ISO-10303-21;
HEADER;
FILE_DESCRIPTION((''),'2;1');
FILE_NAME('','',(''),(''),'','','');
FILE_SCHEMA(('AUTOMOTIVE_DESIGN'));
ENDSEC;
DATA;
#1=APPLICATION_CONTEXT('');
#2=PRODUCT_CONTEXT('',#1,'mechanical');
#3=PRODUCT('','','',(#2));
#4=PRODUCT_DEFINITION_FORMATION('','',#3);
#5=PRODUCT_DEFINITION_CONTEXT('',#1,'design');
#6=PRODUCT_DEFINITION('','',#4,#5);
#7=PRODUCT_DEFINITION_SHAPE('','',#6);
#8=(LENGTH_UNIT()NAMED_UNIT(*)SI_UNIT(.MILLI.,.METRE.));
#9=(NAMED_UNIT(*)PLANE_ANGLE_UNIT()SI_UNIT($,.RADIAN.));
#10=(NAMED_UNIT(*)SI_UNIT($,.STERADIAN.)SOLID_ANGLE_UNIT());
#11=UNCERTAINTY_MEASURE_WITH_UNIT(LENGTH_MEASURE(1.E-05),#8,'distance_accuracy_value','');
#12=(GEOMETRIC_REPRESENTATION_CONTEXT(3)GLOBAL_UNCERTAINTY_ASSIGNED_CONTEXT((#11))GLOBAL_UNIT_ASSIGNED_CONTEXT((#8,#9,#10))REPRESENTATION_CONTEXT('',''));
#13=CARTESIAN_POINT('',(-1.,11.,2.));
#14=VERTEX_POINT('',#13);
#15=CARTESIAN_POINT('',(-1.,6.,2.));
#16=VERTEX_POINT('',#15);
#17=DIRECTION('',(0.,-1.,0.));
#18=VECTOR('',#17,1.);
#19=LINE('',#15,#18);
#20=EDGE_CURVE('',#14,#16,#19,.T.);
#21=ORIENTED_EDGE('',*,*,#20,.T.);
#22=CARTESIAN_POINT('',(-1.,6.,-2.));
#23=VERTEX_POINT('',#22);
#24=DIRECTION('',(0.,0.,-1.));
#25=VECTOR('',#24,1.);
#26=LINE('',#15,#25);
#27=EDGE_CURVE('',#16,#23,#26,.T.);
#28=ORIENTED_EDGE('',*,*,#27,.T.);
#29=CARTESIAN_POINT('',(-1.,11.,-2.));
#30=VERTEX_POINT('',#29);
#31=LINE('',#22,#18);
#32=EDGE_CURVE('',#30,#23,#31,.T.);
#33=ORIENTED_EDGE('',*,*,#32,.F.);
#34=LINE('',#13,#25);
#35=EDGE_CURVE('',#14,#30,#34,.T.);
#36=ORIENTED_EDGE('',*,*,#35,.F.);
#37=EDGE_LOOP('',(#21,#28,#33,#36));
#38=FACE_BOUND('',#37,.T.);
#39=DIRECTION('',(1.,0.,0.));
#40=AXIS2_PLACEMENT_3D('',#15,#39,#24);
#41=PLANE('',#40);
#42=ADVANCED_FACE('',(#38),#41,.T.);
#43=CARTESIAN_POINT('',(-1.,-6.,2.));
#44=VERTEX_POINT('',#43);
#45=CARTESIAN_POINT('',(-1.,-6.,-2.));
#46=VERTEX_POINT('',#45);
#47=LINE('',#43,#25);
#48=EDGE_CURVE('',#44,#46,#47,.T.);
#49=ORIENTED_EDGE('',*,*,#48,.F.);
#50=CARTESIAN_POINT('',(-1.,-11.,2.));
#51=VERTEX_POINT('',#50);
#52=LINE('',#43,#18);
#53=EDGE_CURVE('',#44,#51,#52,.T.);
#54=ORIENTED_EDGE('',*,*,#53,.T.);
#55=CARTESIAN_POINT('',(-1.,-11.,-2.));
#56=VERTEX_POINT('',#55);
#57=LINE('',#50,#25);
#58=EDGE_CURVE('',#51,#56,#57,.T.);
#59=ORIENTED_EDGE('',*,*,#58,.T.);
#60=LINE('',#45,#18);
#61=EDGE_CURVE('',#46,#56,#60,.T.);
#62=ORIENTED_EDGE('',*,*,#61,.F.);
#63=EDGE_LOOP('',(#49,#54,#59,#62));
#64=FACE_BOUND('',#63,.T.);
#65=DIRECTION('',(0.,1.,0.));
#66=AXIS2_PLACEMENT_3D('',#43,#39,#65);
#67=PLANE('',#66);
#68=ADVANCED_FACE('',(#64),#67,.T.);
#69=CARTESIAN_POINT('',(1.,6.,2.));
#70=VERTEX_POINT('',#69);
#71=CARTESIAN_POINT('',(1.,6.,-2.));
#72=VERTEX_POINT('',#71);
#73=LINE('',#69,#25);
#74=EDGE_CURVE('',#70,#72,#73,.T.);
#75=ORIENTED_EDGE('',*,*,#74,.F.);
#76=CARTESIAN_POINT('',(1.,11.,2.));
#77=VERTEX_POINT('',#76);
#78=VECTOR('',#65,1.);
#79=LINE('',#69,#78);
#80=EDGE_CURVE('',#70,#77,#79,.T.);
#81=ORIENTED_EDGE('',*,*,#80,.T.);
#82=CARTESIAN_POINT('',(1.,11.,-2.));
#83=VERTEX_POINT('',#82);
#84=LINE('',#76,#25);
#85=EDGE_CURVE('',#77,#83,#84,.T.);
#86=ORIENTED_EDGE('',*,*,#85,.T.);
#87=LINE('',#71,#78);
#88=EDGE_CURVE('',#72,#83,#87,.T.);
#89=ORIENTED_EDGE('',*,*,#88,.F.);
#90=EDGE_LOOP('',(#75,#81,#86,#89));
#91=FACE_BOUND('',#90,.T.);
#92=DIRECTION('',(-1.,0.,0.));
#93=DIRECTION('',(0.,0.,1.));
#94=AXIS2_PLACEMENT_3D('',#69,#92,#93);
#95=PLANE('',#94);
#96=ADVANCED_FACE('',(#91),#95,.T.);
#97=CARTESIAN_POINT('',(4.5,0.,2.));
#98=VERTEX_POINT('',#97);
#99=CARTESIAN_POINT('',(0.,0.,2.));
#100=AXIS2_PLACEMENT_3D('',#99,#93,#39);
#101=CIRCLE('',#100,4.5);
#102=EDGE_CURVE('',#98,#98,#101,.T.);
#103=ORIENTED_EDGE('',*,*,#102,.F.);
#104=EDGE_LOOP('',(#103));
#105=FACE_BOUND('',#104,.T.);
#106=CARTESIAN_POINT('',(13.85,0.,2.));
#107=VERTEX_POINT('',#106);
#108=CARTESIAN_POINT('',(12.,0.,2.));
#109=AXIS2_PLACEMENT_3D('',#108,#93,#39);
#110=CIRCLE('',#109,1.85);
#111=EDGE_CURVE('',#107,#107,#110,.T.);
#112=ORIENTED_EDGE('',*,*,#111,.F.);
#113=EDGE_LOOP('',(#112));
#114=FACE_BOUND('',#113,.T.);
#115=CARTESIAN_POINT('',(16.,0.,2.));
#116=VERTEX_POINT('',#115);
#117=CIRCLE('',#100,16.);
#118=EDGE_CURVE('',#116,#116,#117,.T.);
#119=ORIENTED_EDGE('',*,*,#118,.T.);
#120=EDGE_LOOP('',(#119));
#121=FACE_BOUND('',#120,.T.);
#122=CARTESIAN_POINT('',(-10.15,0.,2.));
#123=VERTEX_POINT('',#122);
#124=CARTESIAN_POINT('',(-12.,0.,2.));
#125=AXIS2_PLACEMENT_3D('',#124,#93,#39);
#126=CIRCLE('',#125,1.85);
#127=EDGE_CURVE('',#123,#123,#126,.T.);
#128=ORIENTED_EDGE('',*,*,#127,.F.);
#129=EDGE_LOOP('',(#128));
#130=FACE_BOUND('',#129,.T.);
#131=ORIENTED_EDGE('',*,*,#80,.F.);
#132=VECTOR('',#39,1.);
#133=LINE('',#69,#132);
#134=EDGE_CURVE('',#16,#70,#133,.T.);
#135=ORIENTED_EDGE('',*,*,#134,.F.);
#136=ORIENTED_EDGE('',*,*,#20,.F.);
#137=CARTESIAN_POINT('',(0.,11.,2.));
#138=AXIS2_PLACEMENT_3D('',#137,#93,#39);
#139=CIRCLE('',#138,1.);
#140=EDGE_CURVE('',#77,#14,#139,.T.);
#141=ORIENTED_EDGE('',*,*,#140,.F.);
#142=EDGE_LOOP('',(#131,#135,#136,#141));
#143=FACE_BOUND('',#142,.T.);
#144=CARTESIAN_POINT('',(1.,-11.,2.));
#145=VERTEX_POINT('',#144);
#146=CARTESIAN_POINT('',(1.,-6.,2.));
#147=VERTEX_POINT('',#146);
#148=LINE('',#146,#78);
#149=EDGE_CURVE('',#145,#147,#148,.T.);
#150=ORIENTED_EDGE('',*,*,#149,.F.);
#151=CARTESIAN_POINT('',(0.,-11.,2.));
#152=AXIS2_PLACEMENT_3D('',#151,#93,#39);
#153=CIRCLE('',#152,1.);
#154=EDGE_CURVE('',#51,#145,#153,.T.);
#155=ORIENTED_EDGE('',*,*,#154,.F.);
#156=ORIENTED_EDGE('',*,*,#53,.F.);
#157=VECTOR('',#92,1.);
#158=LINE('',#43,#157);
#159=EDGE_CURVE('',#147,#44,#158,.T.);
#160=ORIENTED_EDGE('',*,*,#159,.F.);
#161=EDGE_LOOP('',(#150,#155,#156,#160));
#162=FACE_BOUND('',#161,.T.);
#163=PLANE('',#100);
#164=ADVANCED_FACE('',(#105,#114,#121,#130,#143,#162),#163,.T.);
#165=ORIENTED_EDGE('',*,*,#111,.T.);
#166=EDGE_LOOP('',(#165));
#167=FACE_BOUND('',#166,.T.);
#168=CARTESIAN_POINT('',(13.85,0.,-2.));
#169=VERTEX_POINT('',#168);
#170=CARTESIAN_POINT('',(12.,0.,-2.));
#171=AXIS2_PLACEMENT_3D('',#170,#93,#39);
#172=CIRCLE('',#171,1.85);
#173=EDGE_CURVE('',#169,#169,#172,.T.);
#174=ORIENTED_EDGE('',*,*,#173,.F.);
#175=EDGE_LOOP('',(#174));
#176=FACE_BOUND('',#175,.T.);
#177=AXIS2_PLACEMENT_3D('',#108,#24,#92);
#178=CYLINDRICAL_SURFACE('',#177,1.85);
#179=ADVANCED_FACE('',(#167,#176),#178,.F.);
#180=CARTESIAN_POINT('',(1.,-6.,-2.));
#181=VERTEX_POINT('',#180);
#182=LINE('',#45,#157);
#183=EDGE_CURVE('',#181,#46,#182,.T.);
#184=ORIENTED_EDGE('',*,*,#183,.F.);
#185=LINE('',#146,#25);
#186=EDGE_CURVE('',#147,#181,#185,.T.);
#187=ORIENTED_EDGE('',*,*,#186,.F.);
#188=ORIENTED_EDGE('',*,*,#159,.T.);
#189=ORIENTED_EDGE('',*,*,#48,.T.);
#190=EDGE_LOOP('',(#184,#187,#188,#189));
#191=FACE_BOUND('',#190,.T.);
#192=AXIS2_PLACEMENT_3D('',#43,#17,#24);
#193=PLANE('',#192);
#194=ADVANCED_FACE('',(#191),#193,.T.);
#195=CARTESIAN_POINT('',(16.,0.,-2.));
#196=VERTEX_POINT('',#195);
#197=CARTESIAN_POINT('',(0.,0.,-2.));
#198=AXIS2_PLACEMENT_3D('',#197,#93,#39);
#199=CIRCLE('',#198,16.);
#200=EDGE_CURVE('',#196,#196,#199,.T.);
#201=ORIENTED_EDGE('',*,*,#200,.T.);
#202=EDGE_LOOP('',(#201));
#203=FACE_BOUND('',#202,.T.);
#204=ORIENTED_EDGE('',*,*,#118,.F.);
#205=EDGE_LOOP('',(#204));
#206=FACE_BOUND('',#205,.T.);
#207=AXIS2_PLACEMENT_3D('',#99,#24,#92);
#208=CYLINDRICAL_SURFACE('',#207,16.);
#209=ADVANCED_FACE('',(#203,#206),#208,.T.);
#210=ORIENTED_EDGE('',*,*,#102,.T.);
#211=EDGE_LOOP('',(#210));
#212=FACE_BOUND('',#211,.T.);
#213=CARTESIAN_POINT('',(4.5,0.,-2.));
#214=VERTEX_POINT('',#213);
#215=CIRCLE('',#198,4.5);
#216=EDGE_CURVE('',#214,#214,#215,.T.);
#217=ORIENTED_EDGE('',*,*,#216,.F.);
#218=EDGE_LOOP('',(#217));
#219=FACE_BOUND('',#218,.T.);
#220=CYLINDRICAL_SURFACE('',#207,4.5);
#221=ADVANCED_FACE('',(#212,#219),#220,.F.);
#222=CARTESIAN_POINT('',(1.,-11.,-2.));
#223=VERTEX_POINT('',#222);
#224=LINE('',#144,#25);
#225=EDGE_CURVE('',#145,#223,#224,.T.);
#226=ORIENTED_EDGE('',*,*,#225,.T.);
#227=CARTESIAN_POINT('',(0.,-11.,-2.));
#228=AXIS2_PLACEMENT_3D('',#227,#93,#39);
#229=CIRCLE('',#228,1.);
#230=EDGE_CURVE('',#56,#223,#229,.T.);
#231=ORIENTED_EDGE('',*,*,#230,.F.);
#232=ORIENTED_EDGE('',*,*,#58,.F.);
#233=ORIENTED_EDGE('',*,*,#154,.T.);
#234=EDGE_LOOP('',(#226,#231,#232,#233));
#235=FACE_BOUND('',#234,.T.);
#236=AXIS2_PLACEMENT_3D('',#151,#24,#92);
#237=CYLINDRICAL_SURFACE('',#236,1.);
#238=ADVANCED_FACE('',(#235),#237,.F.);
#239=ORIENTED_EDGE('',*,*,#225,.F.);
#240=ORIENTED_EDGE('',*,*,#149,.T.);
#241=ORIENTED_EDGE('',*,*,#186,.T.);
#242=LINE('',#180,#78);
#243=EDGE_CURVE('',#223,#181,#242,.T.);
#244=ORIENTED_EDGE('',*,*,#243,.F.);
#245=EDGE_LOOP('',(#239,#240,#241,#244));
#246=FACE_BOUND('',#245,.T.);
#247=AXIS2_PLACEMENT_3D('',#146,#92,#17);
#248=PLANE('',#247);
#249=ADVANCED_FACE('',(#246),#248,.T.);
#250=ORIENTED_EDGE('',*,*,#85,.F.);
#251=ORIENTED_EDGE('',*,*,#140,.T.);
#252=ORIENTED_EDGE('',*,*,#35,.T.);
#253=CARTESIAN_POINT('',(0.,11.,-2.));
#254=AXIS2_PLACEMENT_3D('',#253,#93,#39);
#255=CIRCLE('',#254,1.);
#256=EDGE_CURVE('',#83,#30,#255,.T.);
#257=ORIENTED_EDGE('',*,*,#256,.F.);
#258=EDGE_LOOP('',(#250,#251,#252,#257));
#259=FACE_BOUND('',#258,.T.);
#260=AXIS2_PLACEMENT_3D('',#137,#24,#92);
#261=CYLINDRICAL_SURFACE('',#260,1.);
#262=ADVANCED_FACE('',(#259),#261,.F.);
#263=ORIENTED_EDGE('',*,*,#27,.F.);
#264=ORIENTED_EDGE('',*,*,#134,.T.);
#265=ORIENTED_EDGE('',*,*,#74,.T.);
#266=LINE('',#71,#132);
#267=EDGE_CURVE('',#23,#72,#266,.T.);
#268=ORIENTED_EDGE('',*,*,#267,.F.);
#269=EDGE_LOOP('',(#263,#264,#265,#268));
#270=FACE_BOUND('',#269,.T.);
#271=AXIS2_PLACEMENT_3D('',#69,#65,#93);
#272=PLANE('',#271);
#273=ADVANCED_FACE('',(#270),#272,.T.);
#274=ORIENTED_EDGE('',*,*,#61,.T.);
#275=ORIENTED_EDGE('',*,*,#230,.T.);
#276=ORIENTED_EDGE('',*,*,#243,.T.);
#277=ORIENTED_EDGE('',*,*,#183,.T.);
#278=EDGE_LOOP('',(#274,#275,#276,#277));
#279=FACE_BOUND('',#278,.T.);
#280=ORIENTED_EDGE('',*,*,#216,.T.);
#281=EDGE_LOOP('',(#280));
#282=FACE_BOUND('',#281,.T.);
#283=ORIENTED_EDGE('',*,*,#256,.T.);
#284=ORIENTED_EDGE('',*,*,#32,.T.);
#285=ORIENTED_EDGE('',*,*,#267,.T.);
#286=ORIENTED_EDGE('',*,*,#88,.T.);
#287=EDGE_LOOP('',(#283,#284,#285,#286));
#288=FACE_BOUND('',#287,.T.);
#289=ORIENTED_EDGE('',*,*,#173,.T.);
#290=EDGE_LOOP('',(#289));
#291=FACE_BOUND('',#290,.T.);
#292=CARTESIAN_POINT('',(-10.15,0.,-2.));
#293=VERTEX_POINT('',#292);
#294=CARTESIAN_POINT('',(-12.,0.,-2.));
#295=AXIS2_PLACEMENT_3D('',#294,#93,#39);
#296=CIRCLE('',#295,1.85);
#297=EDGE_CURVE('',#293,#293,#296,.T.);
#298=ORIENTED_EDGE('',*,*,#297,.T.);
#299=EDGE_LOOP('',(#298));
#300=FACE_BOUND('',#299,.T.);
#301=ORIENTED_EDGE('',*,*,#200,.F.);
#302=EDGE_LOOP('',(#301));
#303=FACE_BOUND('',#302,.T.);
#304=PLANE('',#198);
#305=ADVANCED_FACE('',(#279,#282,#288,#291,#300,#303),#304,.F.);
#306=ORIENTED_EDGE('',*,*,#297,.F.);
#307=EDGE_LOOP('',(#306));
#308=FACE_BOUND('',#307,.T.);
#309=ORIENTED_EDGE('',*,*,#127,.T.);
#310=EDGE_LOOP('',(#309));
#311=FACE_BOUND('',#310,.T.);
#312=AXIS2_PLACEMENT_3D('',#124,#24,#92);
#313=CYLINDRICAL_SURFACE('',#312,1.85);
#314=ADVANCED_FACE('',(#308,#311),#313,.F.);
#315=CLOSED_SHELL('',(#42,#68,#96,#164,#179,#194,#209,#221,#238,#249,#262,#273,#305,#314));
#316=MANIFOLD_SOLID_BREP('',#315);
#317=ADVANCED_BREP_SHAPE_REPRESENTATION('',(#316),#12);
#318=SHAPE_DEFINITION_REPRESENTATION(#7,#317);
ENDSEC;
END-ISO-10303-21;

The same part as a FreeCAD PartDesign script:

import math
import FreeCAD as App
import Part
import Sketcher
from FreeCAD import Vector

doc = App.newDocument("Part")
body = doc.addObject("PartDesign::Body", "Body")

sketch1 = body.newObject("Sketcher::SketchObject", "Sketch")
sketch1.AttachmentSupport = (doc.getObject("XY_Plane"), [""])
sketch1.MapMode = "FlatFace"
sketch1.addGeometry([
    Part.Circle(Vector(0, 0, 0), Vector(0, 0, 1), 16),
    Part.LineSegment(Vector(-1, -6, 0), Vector(1, -6, 0)),
    Part.LineSegment(Vector(1, -6, 0), Vector(1, -11, 0)),
    Part.ArcOfCircle(Part.Circle(Vector(0, -11, 0), Vector(0, 0, 1), 1), math.radians(180), math.radians(360)),
    Part.LineSegment(Vector(-1, -11, 0), Vector(-1, -6, 0)),
    Part.Circle(Vector(-12, 0, 0), Vector(0, 0, 1), 1.9),
    Part.Circle(Vector(0, 0, 0), Vector(0, 0, 1), 4.5),
    Part.Circle(Vector(12, 0, 0), Vector(0, 0, 1), 1.9),
    Part.LineSegment(Vector(1, 6, 0), Vector(-1, 6, 0)),
    Part.LineSegment(Vector(-1, 6, 0), Vector(-1, 11, 0)),
    Part.ArcOfCircle(Part.Circle(Vector(0, 11, 0), Vector(0, 0, 1), 1), math.radians(0), math.radians(180)),
    Part.LineSegment(Vector(1, 11, 0), Vector(1, 6, 0)),
], False)
sketch1.addConstraint([
    Sketcher.Constraint("Coincident", 1, 2, 2, 1),
    Sketcher.Constraint("Tangent", 2, 2, 3, 2),
    Sketcher.Constraint("Tangent", 3, 1, 4, 1),
    Sketcher.Constraint("Coincident", 4, 2, 1, 1),
    Sketcher.Constraint("Coincident", 8, 2, 9, 1),
    Sketcher.Constraint("Tangent", 9, 2, 10, 2),
    Sketcher.Constraint("Tangent", 10, 1, 11, 1),
    Sketcher.Constraint("Coincident", 11, 2, 8, 1),
    Sketcher.Constraint("Horizontal", 1),
    Sketcher.Constraint("Vertical", 2),
    Sketcher.Constraint("Vertical", 4),
    Sketcher.Constraint("Horizontal", 8),
    Sketcher.Constraint("Vertical", 9),
    Sketcher.Constraint("Vertical", 11),
    Sketcher.Constraint("Coincident", 0, 3, -1, 1),
    Sketcher.Constraint("Coincident", 6, 3, -1, 1),
    Sketcher.Constraint("Equal", 5, 7),
    Sketcher.Constraint("Equal", 3, 10),
    Sketcher.Constraint("Symmetric", 5, 3, 7, 3, -1, 1),
    Sketcher.Constraint("Symmetric", 3, 3, 10, 3, -1, 1),
    Sketcher.Constraint("Symmetric", 4, 2, 8, 2, -1),
    Sketcher.Constraint("PointOnObject", 5, 3, -1),
    Sketcher.Constraint("Diameter", 0, 32.0),
    Sketcher.Constraint("Diameter", 6, 9.0),
    Sketcher.Constraint("Radius", 3, 1.0),
    Sketcher.Constraint("Diameter", 5, 3.7),
    Sketcher.Constraint("DistanceY", 2, 2, 2, 1, 5.0),
    Sketcher.Constraint("DistanceY", 3, 3, -1, 1, 11.0),
    Sketcher.Constraint("DistanceX", 5, 3, -1, 1, 12.0),
])
pad1 = body.newObject("PartDesign::Pad", "Pad")
pad1.Profile = sketch1
pad1.Length = 4
pad1.Midplane = True

doc.recompute()
